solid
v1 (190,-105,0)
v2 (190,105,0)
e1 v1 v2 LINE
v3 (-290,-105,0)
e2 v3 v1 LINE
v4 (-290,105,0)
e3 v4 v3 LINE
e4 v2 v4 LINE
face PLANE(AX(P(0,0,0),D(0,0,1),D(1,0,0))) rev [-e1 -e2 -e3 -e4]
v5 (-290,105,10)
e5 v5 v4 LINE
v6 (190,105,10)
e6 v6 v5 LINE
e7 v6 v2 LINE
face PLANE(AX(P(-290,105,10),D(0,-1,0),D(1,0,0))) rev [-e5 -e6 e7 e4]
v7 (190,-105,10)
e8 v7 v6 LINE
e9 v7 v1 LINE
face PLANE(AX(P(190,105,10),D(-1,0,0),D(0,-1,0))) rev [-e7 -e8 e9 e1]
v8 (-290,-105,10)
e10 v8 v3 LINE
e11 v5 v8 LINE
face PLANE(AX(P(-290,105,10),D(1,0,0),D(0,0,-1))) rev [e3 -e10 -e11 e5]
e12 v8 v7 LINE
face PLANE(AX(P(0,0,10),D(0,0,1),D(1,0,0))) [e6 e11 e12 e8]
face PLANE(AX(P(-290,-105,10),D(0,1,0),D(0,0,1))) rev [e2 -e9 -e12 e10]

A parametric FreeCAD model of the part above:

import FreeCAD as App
import Part
import Sketcher
from FreeCAD import Vector
Q = App.Units.Quantity


def add_polygon(sketch, points):
    """Adds a closed chain of lines whose ends are joined by coincident constraints."""
    first, n = sketch.GeometryCount, len(points)
    for a, b in zip(points, points[1:] + points[:1]):
        sketch.addGeometry(Part.LineSegment(App.Vector(*a, 0), App.Vector(*b, 0)), False)
    for i in range(n):
        sketch.addConstraint(Sketcher.Constraint("Coincident", first + i, 2, first + (i + 1) % n, 1))

doc = App.newDocument("Part")
body = doc.addObject("PartDesign::Body", "Body")

sketch1 = doc.addObject("Sketcher::SketchObject", "Sketch")
body.addObject(sketch1)
sketch1.AttachmentSupport = (doc.XY_Plane, [""])
sketch1.MapMode = "FlatFace"
add_polygon(sketch1, [(-290, 105), (-290, -105), (190, -105), (190, 105)])
sketch1.addConstraint([
    Sketcher.Constraint("Vertical", 0),
    Sketcher.Constraint("Horizontal", 1),
    Sketcher.Constraint("Vertical", 2),
    Sketcher.Constraint("Horizontal", 3),
    Sketcher.Constraint("DistanceX", 1, 1, 1, 2, Q("480 mm")),
    Sketcher.Constraint("DistanceY", 0, 2, 0, 1, Q("210 mm")),
    Sketcher.Constraint("DistanceX", 0, 2, -1, 1, Q("290 mm")),
    Sketcher.Constraint("DistanceY", 0, 2, -1, 1, Q("105 mm")),
])
pad1 = doc.addObject("PartDesign::Pad", "Pad")
body.addObject(pad1)
pad1.Profile = sketch1
pad1.Length = 10

doc.recompute()
